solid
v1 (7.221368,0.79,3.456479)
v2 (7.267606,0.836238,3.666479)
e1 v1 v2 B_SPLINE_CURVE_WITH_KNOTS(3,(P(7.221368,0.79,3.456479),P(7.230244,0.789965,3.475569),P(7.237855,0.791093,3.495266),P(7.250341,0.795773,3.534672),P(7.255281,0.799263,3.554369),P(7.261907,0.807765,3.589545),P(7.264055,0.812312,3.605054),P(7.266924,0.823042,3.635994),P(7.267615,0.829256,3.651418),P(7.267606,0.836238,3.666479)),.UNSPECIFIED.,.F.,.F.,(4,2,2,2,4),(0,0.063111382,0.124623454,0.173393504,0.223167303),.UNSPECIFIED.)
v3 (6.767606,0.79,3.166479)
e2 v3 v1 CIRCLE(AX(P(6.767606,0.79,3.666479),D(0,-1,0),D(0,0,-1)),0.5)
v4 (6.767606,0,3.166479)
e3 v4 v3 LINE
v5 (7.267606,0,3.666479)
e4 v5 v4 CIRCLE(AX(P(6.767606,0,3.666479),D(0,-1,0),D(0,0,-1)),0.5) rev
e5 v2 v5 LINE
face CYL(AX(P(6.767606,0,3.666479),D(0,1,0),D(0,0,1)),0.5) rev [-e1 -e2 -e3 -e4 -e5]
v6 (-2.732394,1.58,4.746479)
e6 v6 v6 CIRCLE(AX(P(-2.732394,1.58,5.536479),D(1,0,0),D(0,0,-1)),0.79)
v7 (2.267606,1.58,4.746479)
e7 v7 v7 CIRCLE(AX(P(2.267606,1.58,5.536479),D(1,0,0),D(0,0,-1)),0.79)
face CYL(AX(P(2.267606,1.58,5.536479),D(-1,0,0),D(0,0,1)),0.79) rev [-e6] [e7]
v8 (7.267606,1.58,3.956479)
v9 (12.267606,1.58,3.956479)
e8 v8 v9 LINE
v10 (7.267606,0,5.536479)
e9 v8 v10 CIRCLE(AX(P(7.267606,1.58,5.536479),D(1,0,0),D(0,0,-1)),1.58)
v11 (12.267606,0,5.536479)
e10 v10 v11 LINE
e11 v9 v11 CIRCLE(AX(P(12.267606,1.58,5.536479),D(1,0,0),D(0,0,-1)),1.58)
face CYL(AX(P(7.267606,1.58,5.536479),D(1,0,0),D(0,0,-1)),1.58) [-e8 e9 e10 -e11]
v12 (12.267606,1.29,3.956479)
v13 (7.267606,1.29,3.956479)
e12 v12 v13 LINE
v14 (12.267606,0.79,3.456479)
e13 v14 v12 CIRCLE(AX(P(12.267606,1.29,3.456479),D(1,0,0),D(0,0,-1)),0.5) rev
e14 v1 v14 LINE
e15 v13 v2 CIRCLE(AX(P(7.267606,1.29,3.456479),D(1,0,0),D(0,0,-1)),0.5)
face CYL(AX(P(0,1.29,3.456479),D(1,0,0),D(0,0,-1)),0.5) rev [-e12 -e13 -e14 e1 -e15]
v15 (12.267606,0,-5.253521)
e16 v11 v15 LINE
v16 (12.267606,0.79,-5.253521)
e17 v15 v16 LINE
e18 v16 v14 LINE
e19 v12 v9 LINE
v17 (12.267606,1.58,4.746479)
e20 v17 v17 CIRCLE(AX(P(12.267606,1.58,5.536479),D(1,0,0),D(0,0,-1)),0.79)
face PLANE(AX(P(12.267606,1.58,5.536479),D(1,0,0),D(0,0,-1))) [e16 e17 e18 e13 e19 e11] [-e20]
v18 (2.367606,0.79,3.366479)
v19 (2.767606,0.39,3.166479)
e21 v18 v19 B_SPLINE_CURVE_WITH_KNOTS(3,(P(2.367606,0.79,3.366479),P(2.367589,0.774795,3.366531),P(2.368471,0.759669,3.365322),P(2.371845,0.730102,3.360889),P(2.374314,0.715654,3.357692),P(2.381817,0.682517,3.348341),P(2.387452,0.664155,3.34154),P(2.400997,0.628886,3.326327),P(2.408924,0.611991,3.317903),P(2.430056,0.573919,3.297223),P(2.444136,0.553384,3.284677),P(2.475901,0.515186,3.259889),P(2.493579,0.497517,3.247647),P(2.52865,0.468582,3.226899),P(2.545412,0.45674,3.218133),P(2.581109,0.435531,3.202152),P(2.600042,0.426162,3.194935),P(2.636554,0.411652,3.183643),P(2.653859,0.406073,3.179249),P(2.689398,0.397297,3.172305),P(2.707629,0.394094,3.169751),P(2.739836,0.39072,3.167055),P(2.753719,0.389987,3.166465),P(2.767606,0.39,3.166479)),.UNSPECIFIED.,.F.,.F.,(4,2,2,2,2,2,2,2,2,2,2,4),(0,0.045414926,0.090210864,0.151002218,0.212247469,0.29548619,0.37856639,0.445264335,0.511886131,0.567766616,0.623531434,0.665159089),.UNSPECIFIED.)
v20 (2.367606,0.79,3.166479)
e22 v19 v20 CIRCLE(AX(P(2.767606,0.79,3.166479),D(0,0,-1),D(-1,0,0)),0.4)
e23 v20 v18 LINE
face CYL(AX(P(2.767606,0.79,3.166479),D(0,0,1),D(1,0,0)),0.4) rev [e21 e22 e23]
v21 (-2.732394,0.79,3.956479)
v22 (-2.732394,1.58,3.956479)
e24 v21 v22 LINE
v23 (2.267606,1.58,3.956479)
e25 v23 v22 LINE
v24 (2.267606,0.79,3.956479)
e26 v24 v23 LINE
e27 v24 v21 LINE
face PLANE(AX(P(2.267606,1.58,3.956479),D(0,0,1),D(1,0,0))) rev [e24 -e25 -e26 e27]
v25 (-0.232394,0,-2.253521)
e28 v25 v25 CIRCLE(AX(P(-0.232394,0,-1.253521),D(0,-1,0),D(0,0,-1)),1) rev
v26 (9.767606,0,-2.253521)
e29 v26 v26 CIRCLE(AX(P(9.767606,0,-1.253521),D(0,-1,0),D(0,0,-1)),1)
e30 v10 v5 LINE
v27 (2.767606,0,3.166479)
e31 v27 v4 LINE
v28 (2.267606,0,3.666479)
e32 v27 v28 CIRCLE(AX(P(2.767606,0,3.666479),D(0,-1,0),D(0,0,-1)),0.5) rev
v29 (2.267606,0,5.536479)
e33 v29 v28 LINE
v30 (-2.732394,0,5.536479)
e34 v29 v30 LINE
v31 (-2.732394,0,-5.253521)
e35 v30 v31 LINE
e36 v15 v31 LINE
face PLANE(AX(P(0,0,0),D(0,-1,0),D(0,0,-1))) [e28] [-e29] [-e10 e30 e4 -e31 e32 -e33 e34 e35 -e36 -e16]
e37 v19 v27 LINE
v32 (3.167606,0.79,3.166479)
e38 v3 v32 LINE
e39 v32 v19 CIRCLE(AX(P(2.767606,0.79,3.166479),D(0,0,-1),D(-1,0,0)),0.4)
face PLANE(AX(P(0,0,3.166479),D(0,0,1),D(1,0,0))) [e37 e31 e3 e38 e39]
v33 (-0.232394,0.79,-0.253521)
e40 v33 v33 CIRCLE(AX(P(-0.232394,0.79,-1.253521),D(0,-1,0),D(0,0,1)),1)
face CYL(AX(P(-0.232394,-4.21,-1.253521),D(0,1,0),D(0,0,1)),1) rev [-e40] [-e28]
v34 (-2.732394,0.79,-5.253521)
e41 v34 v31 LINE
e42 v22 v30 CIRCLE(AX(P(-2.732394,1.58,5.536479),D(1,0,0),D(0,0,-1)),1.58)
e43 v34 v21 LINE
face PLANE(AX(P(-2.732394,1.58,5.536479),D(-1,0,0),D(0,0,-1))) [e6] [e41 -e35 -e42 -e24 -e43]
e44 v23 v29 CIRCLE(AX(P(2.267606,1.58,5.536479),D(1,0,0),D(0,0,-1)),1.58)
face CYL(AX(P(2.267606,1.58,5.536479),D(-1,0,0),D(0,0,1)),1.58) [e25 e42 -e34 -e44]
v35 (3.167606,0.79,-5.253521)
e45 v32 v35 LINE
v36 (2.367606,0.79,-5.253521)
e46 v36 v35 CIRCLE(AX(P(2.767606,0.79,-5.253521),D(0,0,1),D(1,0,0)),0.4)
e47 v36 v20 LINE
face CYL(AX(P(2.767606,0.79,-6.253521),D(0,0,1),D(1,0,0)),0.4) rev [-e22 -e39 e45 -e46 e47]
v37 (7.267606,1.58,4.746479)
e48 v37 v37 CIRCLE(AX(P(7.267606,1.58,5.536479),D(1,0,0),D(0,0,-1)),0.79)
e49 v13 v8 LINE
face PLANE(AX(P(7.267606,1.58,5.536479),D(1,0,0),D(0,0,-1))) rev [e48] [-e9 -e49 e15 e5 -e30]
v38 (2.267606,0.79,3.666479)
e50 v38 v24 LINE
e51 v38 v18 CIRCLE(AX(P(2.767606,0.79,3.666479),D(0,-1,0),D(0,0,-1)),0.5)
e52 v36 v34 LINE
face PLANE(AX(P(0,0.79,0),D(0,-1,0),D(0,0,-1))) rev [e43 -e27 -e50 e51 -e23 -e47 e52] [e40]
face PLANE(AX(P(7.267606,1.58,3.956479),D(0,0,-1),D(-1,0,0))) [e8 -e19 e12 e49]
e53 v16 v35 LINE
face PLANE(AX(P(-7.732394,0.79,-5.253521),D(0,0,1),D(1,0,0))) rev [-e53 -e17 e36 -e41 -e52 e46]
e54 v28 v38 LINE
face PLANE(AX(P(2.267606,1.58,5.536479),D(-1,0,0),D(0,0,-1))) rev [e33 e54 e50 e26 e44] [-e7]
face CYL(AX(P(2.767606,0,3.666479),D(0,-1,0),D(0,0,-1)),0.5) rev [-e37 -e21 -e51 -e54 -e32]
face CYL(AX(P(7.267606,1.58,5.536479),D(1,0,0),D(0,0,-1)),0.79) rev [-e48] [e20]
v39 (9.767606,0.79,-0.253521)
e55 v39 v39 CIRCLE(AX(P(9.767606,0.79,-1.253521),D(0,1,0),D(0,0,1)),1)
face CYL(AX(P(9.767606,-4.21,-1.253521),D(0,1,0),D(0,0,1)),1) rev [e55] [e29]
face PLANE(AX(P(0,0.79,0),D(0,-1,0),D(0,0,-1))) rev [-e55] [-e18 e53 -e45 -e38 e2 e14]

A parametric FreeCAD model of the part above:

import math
import FreeCAD as App
import Part
import Sketcher
Q = App.Units.Quantity


def edges_at(feature, points):
    """Names of the edges that pass closest to the given points."""
    edges = feature.Shape.Edges
    near = lambda p: min(range(len(edges)), key=lambda i: edges[i].distToShape(Part.Vertex(*p))[0])
    return sorted({f"Edge{near(p) + 1}" for p in points})


def add_polygon(sketch, points):
    """Adds a closed chain of lines whose ends are joined by coincident constraints."""
    first, n = sketch.GeometryCount, len(points)
    for a, b in zip(points, points[1:] + points[:1]):
        sketch.addGeometry(Part.LineSegment(App.Vector(*a, 0), App.Vector(*b, 0)), False)
    for i in range(n):
        sketch.addConstraint(Sketcher.Constraint("Coincident", first + i, 2, first + (i + 1) % n, 1))

doc = App.newDocument("Part")
body = doc.addObject("PartDesign::Body", "Body")

sketch1 = body.newObject("Sketcher::SketchObject", "Sketch")
sketch1.AttachmentSupport = (doc.getObject("XZ_Plane"), [""])
sketch1.MapMode = "FlatFace"
add_polygon(sketch1, [(-8, -5), (-8, 5), (17, 5), (17, -5)])
sketch1.addConstraint([
    Sketcher.Constraint("Vertical", 0),
    Sketcher.Constraint("Horizontal", 1),
    Sketcher.Constraint("Vertical", 2),
    Sketcher.Constraint("Horizontal", 3),
    Sketcher.Constraint("DistanceX", 1, 1, 1, 2, Q("25 mm")),
    Sketcher.Constraint("DistanceY", 0, 1, 0, 2, Q("10 mm")),
    Sketcher.Constraint("DistanceY", -1, 1, 0, 2, Q("4.746479 mm")),
    Sketcher.Constraint("DistanceX", 0, 2, -1, 1, Q("7.732394 mm")),
])
pad1 = body.newObject("PartDesign::Pad", "Pad")
pad1.Profile = sketch1
pad1.Length = 0.79
pad1.Reversed = True

sketch2 = body.newObject("Sketcher::SketchObject", "Sketch001")
sketch2.AttachmentSupport = (doc.getObject("YZ_Plane"), [""])
sketch2.MapMode = "FlatFace"
sketch2.AttachmentOffset = App.Placement(App.Vector(0, 0, 12.267606), App.Rotation())
sketch2.addGeometry([
    Part.LineSegment(App.Vector(0.8, 4, 0), App.Vector(1.6, 4, 0)),
    Part.ArcOfCircle(Part.Circle(App.Vector(1.6, 5.5, 0), App.Vector(0, 0, 1), 1.6), math.radians(-90), math.radians(180)),
    Part.LineSegment(App.Vector(0, 5.5, 0), App.Vector(0, 4.7, 0)),
    Part.ArcOfCircle(Part.Circle(App.Vector(0.8, 4.7, 0), App.Vector(0, 0, 1), 0.8), math.radians(180), math.radians(270)),
    Part.Circle(App.Vector(1.6, 5.5, 0), App.Vector(0, 0, 1), 0.8),
], False)
sketch2.addConstraint([
    Sketcher.Constraint("Tangent", 0, 2, 1, 1),
    Sketcher.Constraint("Tangent", 1, 2, 2, 1),
    Sketcher.Constraint("Tangent", 2, 2, 3, 1),
    Sketcher.Constraint("Tangent", 3, 2, 0, 1),
    Sketcher.Constraint("Horizontal", 0),
    Sketcher.Constraint("Vertical", 2),
    Sketcher.Constraint("Coincident", 4, 3, 1, 3),
    Sketcher.Constraint("Equal", 3, 4),
    Sketcher.Constraint("PointOnObject", 1, 2, -2),
    Sketcher.Constraint("Diameter", 4, Q("1.58 mm")),
    Sketcher.Constraint("Radius", 1, Q("1.58 mm")),
    Sketcher.Constraint("DistanceY", -1, 1, 1, 3, Q("5.536479 mm")),
])
pad2 = body.newObject("PartDesign::Pad", "Pad001")
pad2.Profile = sketch2
pad2.Length = 5
pad2.Reversed = True
doc.recompute()

fillet = body.newObject("PartDesign::Fillet", "Fillet")
fillet.Base = (pad2, edges_at(pad2, [(9.768, 0.79, 3.956)]))
fillet.Radius = 0.5

sketch3 = body.newObject("Sketcher::SketchObject", "Sketch002")
sketch3.AttachmentSupport = (doc.getObject("XZ_Plane"), [""])
sketch3.MapMode = "FlatFace"
sketch3.AttachmentOffset = App.Placement(App.Vector(0, 0, -0.79), App.Rotation())
sketch3.addGeometry(Part.Circle(App.Vector(9.8, -1.3, 0), App.Vector(0, 0, 1), 1), False)
sketch3.addConstraint([
    Sketcher.Constraint("Diameter", 0, Q("2 mm")),
    Sketcher.Constraint("DistanceY", 0, 3, -1, 1, Q("1.253521 mm")),
    Sketcher.Constraint("DistanceX", -1, 1, 0, 3, Q("9.767606 mm")),
])
pocket1 = body.newObject("PartDesign::Pocket", "Pocket")
pocket1.Profile = sketch3
pocket1.Length = 5
pocket1.Reversed = True
doc.recompute()

datumplane = body.newObject("PartDesign::Plane", "DatumPlane")
datumplane.AttachmentSupport = (doc.getObject("YZ_Plane"), [""])
datumplane.MapMode = "FlatFace"
datumplane.AttachmentOffset = App.Placement(App.Vector(0, 0, 4.767606), App.Rotation())
mirrored = body.newObject("PartDesign::Mirrored", "Mirrored")
mirrored.Originals = [pad2, pocket1]
mirrored.MirrorPlane = (datumplane, [""])
body.Tip = mirrored

sketch4 = body.newObject("Sketcher::SketchObject", "Sketch003")
sketch4.AttachmentSupport = (doc.getObject("XY_Plane"), [""])
sketch4.MapMode = "FlatFace"
sketch4.AttachmentOffset = App.Placement(App.Vector(0, 0, 4.746479), App.Rotation())
add_polygon(sketch4, [(12.3, 0.8), (12.3, 0), (17.3, 0), (17.3, 0.8)])
add_polygon(sketch4, [(2.3, 0.8), (2.3, 0), (7.3, 0), (7.3, 0.8)])
add_polygon(sketch4, [(-7.7, 0.8), (-7.7, 0), (-2.7, 0), (-2.7, 0.8)])
sketch4.addConstraint([
    Sketcher.Constraint("Vertical", 0),
    Sketcher.Constraint("Horizontal", 1),
    Sketcher.Constraint("Vertical", 2),
    Sketcher.Constraint("Horizontal", 3),
    Sketcher.Constraint("Vertical", 4),
    Sketcher.Constraint("Horizontal", 5),
    Sketcher.Constraint("Vertical", 6),
    Sketcher.Constraint("Horizontal", 7),
    Sketcher.Constraint("Vertical", 8),
    Sketcher.Constraint("Horizontal", 9),
    Sketcher.Constraint("Vertical", 10),
    Sketcher.Constraint("Horizontal", 11),
    Sketcher.Constraint("PointOnObject", 0, 2, -1),
    Sketcher.Constraint("PointOnObject", 4, 2, -1),
    Sketcher.Constraint("PointOnObject", 8, 2, -1),
    Sketcher.Constraint("Horizontal", 3, 2, 6, 2),
    Sketcher.Constraint("Horizontal", 7, 2, 10, 2),
    Sketcher.Constraint("Equal", 3, 5),
    Sketcher.Constraint("Equal", 7, 9),
    Sketcher.Constraint("DistanceX", 1, 1, 1, 2, Q("5 mm")),
    Sketcher.Constraint("DistanceX", 4, 2, 0, 2, Q("10 mm")),
    Sketcher.Constraint("DistanceX", 8, 2, 4, 2, Q("10 mm")),
    Sketcher.Constraint("DistanceY", 0, 2, 0, 1, Q("0.79 mm")),
    Sketcher.Constraint("DistanceX", -1, 1, 0, 2, Q("12.267606 mm")),
])
pocket2 = body.newObject("PartDesign::Pocket", "Pocket001")
pocket2.Profile = sketch4
pocket2.Length = 1.58
doc.recompute()

fillet2 = body.newObject("PartDesign::Fillet", "Fillet001")
fillet2.Base = (pocket2, edges_at(pocket2, [(7.268, 0.395, 3.166), (2.268, 0.395, 3.166)]))
fillet2.Radius = 0.5

sketch5 = body.newObject("Sketcher::SketchObject", "Sketch004")
sketch5.AttachmentSupport = (doc.getObject("XY_Plane"), [""])
sketch5.MapMode = "FlatFace"
sketch5.AttachmentOffset = App.Placement(App.Vector(0, 0, -5.253521), App.Rotation())
sketch5.addGeometry(Part.Circle(App.Vector(2.77, 0.79, 0), App.Vector(0, 0, 1), 0.4), False)
sketch5.addConstraint([
    Sketcher.Constraint("Diameter", 0, Q("0.8 mm")),
    Sketcher.Constraint("DistanceY", -1, 1, 0, 3, Q("0.79 mm")),
    Sketcher.Constraint("DistanceX", -1, 1, 0, 3, Q("2.767606 mm")),
])

sketch6 = body.newObject("Sketcher::SketchObject", "Sketch005")
sketch6.AttachmentSupport = (doc.getObject("XZ_Plane"), [""])
sketch6.MapMode = "FlatFace"
sketch6.addGeometry(Part.LineSegment(App.Vector(3, -5, 0), App.Vector(3, 4, 0)), False)
sketch6.addConstraint([
    Sketcher.Constraint("Vertical", 0),
    Sketcher.Constraint("DistanceY", 0, 1, 0, 2, Q("9.137581 mm")),
    Sketcher.Constraint("DistanceY", 0, 1, -1, 1, Q("5.253521 mm")),
    Sketcher.Constraint("DistanceX", -1, 1, 0, 1, Q("2.767606 mm")),
])
doc.recompute()

subtractivepipe = body.newObject("PartDesign::SubtractivePipe", "SubtractivePipe")
subtractivepipe.Profile = sketch5
subtractivepipe.Spine = (sketch6, ["Edge1"])

sketch7 = body.newObject("Sketcher::SketchObject", "Sketch006")
sketch7.AttachmentSupport = (doc.getObject("YZ_Plane"), [""])
sketch7.MapMode = "FlatFace"
sketch7.AttachmentOffset = App.Placement(App.Vector(0, 0, -7.732394), App.Rotation())
add_polygon(sketch7, [(0.8, -5.3), (0, -5.3), (0, 3.2), (0.8, 3.2)])
sketch7.addConstraint([
    Sketcher.Constraint("Horizontal", 0),
    Sketcher.Constraint("Vertical", 1),
    Sketcher.Constraint("Horizontal", 2),
    Sketcher.Constraint("Vertical", 3),
    Sketcher.Constraint("PointOnObject", 0, 2, -2),
    Sketcher.Constraint("DistanceX", 0, 2, 0, 1, Q("0.79 mm")),
    Sketcher.Constraint("DistanceY", 1, 1, 1, 2, Q("8.42 mm")),
    Sketcher.Constraint("DistanceY", 0, 2, -1, 1, Q("5.253521 mm")),
])
pocket3 = body.newObject("PartDesign::Pocket", "Pocket002")
pocket3.Profile = sketch7
pocket3.Length = 5
pocket3.Reversed = True

sketch8 = body.newObject("Sketcher::SketchObject", "Sketch007")
sketch8.AttachmentSupport = (doc.getObject("YZ_Plane"), [""])
sketch8.MapMode = "FlatFace"
sketch8.AttachmentOffset = App.Placement(App.Vector(0, 0, 17.267606), App.Rotation())
add_polygon(sketch8, [(0.8, 3.2), (0, 3.2), (0, -5.3), (0.8, -5.3)])
sketch8.addConstraint([
    Sketcher.Constraint("Horizontal", 0),
    Sketcher.Constraint("Vertical", 1),
    Sketcher.Constraint("Horizontal", 2),
    Sketcher.Constraint("Vertical", 3),
    Sketcher.Constraint("PointOnObject", 0, 2, -2),
    Sketcher.Constraint("DistanceX", 0, 2, 0, 1, Q("0.79 mm")),
    Sketcher.Constraint("DistanceY", 1, 2, 1, 1, Q("8.42 mm")),
    Sketcher.Constraint("DistanceY", -1, 1, 0, 2, Q("3.166479 mm")),
])
pocket4 = body.newObject("PartDesign::Pocket", "Pocket003")
pocket4.Profile = sketch8
pocket4.Length = 5

doc.recompute()
